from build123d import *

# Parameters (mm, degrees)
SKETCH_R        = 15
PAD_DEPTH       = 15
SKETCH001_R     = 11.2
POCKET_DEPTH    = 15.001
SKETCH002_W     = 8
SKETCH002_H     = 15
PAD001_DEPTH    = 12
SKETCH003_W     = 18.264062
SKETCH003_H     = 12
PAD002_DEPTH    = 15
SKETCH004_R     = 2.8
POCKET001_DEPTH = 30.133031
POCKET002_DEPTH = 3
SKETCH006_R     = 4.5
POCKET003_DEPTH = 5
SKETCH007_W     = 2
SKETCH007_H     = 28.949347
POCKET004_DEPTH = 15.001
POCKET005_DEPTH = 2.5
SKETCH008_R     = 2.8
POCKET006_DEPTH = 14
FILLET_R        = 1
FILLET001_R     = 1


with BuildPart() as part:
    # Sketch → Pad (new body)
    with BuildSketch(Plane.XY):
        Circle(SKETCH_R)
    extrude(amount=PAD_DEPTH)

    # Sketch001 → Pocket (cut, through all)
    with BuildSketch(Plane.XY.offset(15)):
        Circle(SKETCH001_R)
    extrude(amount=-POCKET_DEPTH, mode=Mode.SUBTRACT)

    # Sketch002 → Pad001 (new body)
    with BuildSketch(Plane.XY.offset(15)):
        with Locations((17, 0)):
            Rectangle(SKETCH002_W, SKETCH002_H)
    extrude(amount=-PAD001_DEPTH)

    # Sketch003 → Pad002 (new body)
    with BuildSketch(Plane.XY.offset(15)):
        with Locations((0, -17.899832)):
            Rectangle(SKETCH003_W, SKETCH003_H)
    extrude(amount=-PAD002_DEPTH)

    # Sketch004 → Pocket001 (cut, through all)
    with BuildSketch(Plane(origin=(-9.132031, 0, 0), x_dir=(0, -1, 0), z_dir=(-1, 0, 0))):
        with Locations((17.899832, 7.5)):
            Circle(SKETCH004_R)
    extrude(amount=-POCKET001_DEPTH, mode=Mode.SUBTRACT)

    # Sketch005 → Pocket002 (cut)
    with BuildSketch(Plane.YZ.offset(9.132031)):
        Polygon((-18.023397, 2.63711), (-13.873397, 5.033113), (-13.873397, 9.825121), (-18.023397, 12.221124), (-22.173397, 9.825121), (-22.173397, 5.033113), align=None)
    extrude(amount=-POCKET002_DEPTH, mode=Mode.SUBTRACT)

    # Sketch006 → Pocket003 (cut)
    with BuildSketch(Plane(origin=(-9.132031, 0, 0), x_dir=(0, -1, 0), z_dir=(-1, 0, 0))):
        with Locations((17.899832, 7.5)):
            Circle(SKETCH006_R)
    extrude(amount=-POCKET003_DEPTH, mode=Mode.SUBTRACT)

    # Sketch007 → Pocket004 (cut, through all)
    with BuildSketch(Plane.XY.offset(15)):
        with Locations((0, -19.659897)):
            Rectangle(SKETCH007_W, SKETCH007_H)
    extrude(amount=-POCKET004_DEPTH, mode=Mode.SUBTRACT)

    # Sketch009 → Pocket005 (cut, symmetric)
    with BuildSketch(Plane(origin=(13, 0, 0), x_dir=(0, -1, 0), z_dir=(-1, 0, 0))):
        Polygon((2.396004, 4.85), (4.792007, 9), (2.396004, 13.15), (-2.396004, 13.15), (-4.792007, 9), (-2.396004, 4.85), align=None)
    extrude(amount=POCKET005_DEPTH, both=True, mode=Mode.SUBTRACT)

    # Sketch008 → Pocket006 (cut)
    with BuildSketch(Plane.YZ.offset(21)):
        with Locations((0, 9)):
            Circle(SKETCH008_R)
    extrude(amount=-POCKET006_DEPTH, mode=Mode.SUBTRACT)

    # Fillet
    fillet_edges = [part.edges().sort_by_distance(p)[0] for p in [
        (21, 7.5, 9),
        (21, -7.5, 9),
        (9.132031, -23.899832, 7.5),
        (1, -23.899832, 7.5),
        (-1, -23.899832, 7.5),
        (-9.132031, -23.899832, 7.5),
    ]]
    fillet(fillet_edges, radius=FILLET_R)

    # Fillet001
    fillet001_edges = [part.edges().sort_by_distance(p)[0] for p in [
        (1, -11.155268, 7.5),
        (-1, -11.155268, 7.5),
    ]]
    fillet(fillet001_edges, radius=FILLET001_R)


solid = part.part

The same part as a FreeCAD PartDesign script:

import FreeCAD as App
import Part
import Sketcher

V = App.Vector
Q = App.Units.Quantity


def edges_at(feature, points):
    """Names of the edges that pass closest to the given points."""
    edges = feature.Shape.Edges
    near = lambda p: min(range(len(edges)), key=lambda i: edges[i].distToShape(Part.Vertex(*p))[0])
    return sorted({f"Edge{near(p) + 1}" for p in points})


def add_polygon(sketch, points):
    """Adds a closed chain of lines whose ends are joined by coincident constraints."""
    first, n = sketch.GeometryCount, len(points)
    for a, b in zip(points, points[1:] + points[:1]):
        sketch.addGeometry(Part.LineSegment(App.Vector(*a, 0), App.Vector(*b, 0)), False)
    for i in range(n):
        sketch.addConstraint(Sketcher.Constraint("Coincident", first + i, 2, first + (i + 1) % n, 1))

doc = App.newDocument("Part")
body = doc.addObject("PartDesign::Body", "Body")

# Sketch on XY plane
sketch1 = doc.addObject("Sketcher::SketchObject", "Sketch")
body.addObject(sketch1)
sketch1.AttachmentSupport = (doc.XY_Plane, [""])
sketch1.MapMode = "FlatFace"
sketch1.addGeometry(Part.Circle(V(0, 0, 0), V(0, 0, 1), 15), False)
sketch1.addConstraint([
    Sketcher.Constraint("Coincident", 0, 3, -1, 1),
    Sketcher.Constraint("Diameter", 0, 30.0),
])
pad1 = doc.addObject("PartDesign::Pad", "Pad")
body.addObject(pad1)
pad1.Profile = sketch1
pad1.Length = 15

# Sketch on XY plane
sketch2 = doc.addObject("Sketcher::SketchObject", "Sketch001")
body.addObject(sketch2)
sketch2.AttachmentSupport = (doc.XY_Plane, [""])
sketch2.MapMode = "FlatFace"
sketch2.AttachmentOffset = App.Placement(V(0, 0, 15), App.Rotation())
sketch2.addGeometry(Part.Circle(V(0, 0, 0), V(0, 0, 1), 11), False)
sketch2.addConstraint([
    Sketcher.Constraint("Coincident", 0, 3, -1, 1),
    Sketcher.Constraint("Diameter", 0, 22.4),
])
pocket1 = doc.addObject("PartDesign::Pocket", "Pocket")
body.addObject(pocket1)
pocket1.Profile = sketch2
pocket1.Type = "ThroughAll"

# Sketch on XY plane
sketch3 = doc.addObject("Sketcher::SketchObject", "Sketch002")
body.addObject(sketch3)
sketch3.AttachmentSupport = (doc.XY_Plane, [""])
sketch3.MapMode = "FlatFace"
sketch3.AttachmentOffset = App.Placement(V(0, 0, 15), App.Rotation())
add_polygon(sketch3, [(13, 8), (13, -8), (21, -8), (21, 8)])  # lines 0-3
sketch3.addConstraint([
    Sketcher.Constraint("Vertical", 0),
    Sketcher.Constraint("Horizontal", 1),
    Sketcher.Constraint("Vertical", 2),
    Sketcher.Constraint("Horizontal", 3),
    Sketcher.Constraint("DistanceX", 1, 1, 1, 2, 8.0),
    Sketcher.Constraint("DistanceY", 0, 2, 0, 1, 15.0),
    Sketcher.Constraint("DistanceX", -1, 1, 0, 2, 13.0),
    Sketcher.Constraint("DistanceY", 0, 2, -1, 1, 7.5),
])
pad2 = doc.addObject("PartDesign::Pad", "Pad001")
body.addObject(pad2)
pad2.Profile = sketch3
pad2.Length = 12
pad2.Reversed = True

# Sketch on XY plane
sketch4 = doc.addObject("Sketcher::SketchObject", "Sketch003")
body.addObject(sketch4)
sketch4.AttachmentSupport = (doc.XY_Plane, [""])
sketch4.MapMode = "FlatFace"
sketch4.AttachmentOffset = App.Placement(V(0, 0, 15), App.Rotation())
add_polygon(sketch4, [(-9, -12), (-9, -24), (9, -24), (9, -12)])  # lines 0-3
sketch4.addConstraint([
    Sketcher.Constraint("Vertical", 0),
    Sketcher.Constraint("Horizontal", 1),
    Sketcher.Constraint("Vertical", 2),
    Sketcher.Constraint("Horizontal", 3),
    Sketcher.Constraint("DistanceY", 0, 2, 0, 1, 12.0),
    Sketcher.Constraint("DistanceX", 1, 1, 1, 2, 18.264062),
    Sketcher.Constraint("DistanceX", 0, 2, -1, 1, 9.132031),
    Sketcher.Constraint("DistanceY", 0, 2, -1, 1, 23.899832),
])
pad3 = doc.addObject("PartDesign::Pad", "Pad002")
body.addObject(pad3)
pad3.Profile = sketch4
pad3.Length = 15
pad3.Reversed = True

# Sketch on YZ plane
sketch5 = doc.addObject("Sketcher::SketchObject", "Sketch004")
body.addObject(sketch5)
sketch5.AttachmentSupport = (doc.YZ_Plane, [""])
sketch5.MapMode = "FlatFace"
sketch5.AttachmentOffset = App.Placement(V(0, 0, -9.132031), App.Rotation())
sketch5.addGeometry(Part.Circle(V(-17.9, 7.5, 0), V(0, 0, 1), 2.8), False)
sketch5.addConstraint([
    Sketcher.Constraint("Diameter", 0, 5.6),
    Sketcher.Constraint("DistanceY", -1, 1, 0, 3, 7.5),
    Sketcher.Constraint("DistanceX", 0, 3, -1, 1, 17.899832),
])
pocket2 = doc.addObject("PartDesign::Pocket", "Pocket001")
body.addObject(pocket2)
pocket2.Profile = sketch5
pocket2.Type = "ThroughAll"
pocket2.Reversed = True

# Sketch on YZ plane
sketch6 = doc.addObject("Sketcher::SketchObject", "Sketch005")
body.addObject(sketch6)
sketch6.AttachmentSupport = (doc.YZ_Plane, [""])
sketch6.MapMode = "FlatFace"
sketch6.AttachmentOffset = App.Placement(V(0, 0, 9.132031), App.Rotation())
add_polygon(sketch6, [(-18, 2.6), (-13.9, 5), (-13.9, 9.8), (-18, 12.2), (-22.2, 9.8), (-22.2, 5)])  # lines 0-5
sketch6.addConstraint([
    Sketcher.Constraint("Vertical", 1),
    Sketcher.Constraint("Vertical", 4),
    Sketcher.Constraint("Parallel", 0, 3),
    Sketcher.Constraint("Parallel", 2, 5),
    Sketcher.Constraint("Horizontal", 1, 2, 3, 2),
    Sketcher.Constraint("Horizontal", 0, 2, 4, 2),
    Sketcher.Constraint("Vertical", 2, 2, 5, 2),
    Sketcher.Constraint("Angle", 0, Q("29.999994 deg")),
    Sketcher.Constraint("DistanceX", 3, 2, 1, 2, 8.3),
    Sketcher.Constraint("DistanceY", 1, 1, 1, 2, 4.792008),
    Sketcher.Constraint("DistanceY", -1, 1, 1, 2, 9.825121),
    Sketcher.Constraint("DistanceX", 0, 2, -1, 1, 13.873397),
])
pocket3 = doc.addObject("PartDesign::Pocket", "Pocket002")
body.addObject(pocket3)
pocket3.Profile = sketch6
pocket3.Length = 3

# Sketch on YZ plane
sketch7 = doc.addObject("Sketcher::SketchObject", "Sketch006")
body.addObject(sketch7)
sketch7.AttachmentSupport = (doc.YZ_Plane, [""])
sketch7.MapMode = "FlatFace"
sketch7.AttachmentOffset = App.Placement(V(0, 0, -9.132031), App.Rotation())
sketch7.addGeometry(Part.Circle(V(-17.9, 7.5, 0), V(0, 0, 1), 4.5), False)
sketch7.addConstraint([
    Sketcher.Constraint("Diameter", 0, 9.0),
    Sketcher.Constraint("DistanceY", -1, 1, 0, 3, 7.5),
    Sketcher.Constraint("DistanceX", 0, 3, -1, 1, 17.899832),
])
pocket4 = doc.addObject("PartDesign::Pocket", "Pocket003")
body.addObject(pocket4)
pocket4.Profile = sketch7
pocket4.Length = 5
pocket4.Reversed = True

# Sketch on XY plane
sketch8 = doc.addObject("Sketcher::SketchObject", "Sketch007")
body.addObject(sketch8)
sketch8.AttachmentSupport = (doc.XY_Plane, [""])
sketch8.MapMode = "FlatFace"
sketch8.AttachmentOffset = App.Placement(V(0, 0, 15), App.Rotation())
add_polygon(sketch8, [(-1, -5.2), (-1, -34.1), (1, -34.1), (1, -5.2)])  # lines 0-3
sketch8.addConstraint([
    Sketcher.Constraint("Vertical", 0),
    Sketcher.Constraint("Horizontal", 1),
    Sketcher.Constraint("Vertical", 2),
    Sketcher.Constraint("Horizontal", 3),
    Sketcher.Constraint("DistanceX", 1, 1, 1, 2, 2.0),
    Sketcher.Constraint("DistanceX", 0, 2, -1, 1, 1.0),
    Sketcher.Constraint("DistanceY", 0, 2, 0, 1, 28.949347),
    Sketcher.Constraint("DistanceY", 0, 2, -1, 1, 34.134571),
])
pocket5 = doc.addObject("PartDesign::Pocket", "Pocket004")
body.addObject(pocket5)
pocket5.Profile = sketch8
pocket5.Type = "ThroughAll"

# Sketch on YZ plane
sketch9 = doc.addObject("Sketcher::SketchObject", "Sketch008")
body.addObject(sketch9)
sketch9.AttachmentSupport = (doc.YZ_Plane, [""])
sketch9.MapMode = "FlatFace"
sketch9.AttachmentOffset = App.Placement(V(0, 0, 13), App.Rotation())
add_polygon(sketch9, [(-2.4, 4.8), (-4.8, 9), (-2.4, 13.2), (2.4, 13.2), (4.8, 9), (2.4, 4.8)])  # lines 0-5
sketch9.addConstraint([
    Sketcher.Constraint("Horizontal", 2),
    Sketcher.Constraint("Horizontal", 5),
    Sketcher.Constraint("Symmetric", 0, 2, 3, 2, -2),
    Sketcher.Constraint("Parallel", 0, 3),
    Sketcher.Constraint("Parallel", 1, 4),
    Sketcher.Constraint("Vertical", 2, 2, 4, 2),
    Sketcher.Constraint("Vertical", 1, 2, 5, 2),
    Sketcher.Constraint("Angle", 0, Q("119.999994 deg")),
    Sketcher.Constraint("DistanceY", -1, 1, 0, 2, 9.0),
    Sketcher.Constraint("DistanceY", 4, 2, 2, 2, 8.3),
    Sketcher.Constraint("DistanceX", 2, 1, 2, 2, 4.792008),
])
pocket6 = doc.addObject("PartDesign::Pocket", "Pocket005")
body.addObject(pocket6)
pocket6.Profile = sketch9
pocket6.Length = 5
pocket6.Midplane = True

# Sketch on YZ plane
sketch10 = doc.addObject("Sketcher::SketchObject", "Sketch009")
body.addObject(sketch10)
sketch10.AttachmentSupport = (doc.YZ_Plane, [""])
sketch10.MapMode = "FlatFace"
sketch10.AttachmentOffset = App.Placement(V(0, 0, 21), App.Rotation())
sketch10.addGeometry(Part.Circle(V(0, 9, 0), V(0, 0, 1), 2.8), False)
sketch10.addConstraint([
    Sketcher.Constraint("PointOnObject", 0, 3, -2),
    Sketcher.Constraint("Diameter", 0, 5.6),
    Sketcher.Constraint("DistanceY", -1, 1, 0, 3, 9.0),
])
pocket7 = doc.addObject("PartDesign::Pocket", "Pocket006")
body.addObject(pocket7)
pocket7.Profile = sketch10
pocket7.Length = 14
doc.recompute()

fillet = doc.addObject("PartDesign::Fillet", "Fillet")
body.addObject(fillet)
fillet.Base = (pocket7, edges_at(pocket7, [
    (21, 7.5, 9),
    (21, -7.5, 9),
    (9.132, -23.9, 7.5),
    (1, -23.9, 7.5),
    (-1, -23.9, 7.5),
    (-9.132, -23.9, 7.5),
]))
fillet.Radius = 1
doc.recompute()

fillet2 = doc.addObject("PartDesign::Fillet", "Fillet001")
body.addObject(fillet2)
fillet2.Base = (fillet, edges_at(fillet, [(1, -11.155, 7.5), (-1, -11.155, 7.5)]))
fillet2.Radius = 1

doc.recompute()
